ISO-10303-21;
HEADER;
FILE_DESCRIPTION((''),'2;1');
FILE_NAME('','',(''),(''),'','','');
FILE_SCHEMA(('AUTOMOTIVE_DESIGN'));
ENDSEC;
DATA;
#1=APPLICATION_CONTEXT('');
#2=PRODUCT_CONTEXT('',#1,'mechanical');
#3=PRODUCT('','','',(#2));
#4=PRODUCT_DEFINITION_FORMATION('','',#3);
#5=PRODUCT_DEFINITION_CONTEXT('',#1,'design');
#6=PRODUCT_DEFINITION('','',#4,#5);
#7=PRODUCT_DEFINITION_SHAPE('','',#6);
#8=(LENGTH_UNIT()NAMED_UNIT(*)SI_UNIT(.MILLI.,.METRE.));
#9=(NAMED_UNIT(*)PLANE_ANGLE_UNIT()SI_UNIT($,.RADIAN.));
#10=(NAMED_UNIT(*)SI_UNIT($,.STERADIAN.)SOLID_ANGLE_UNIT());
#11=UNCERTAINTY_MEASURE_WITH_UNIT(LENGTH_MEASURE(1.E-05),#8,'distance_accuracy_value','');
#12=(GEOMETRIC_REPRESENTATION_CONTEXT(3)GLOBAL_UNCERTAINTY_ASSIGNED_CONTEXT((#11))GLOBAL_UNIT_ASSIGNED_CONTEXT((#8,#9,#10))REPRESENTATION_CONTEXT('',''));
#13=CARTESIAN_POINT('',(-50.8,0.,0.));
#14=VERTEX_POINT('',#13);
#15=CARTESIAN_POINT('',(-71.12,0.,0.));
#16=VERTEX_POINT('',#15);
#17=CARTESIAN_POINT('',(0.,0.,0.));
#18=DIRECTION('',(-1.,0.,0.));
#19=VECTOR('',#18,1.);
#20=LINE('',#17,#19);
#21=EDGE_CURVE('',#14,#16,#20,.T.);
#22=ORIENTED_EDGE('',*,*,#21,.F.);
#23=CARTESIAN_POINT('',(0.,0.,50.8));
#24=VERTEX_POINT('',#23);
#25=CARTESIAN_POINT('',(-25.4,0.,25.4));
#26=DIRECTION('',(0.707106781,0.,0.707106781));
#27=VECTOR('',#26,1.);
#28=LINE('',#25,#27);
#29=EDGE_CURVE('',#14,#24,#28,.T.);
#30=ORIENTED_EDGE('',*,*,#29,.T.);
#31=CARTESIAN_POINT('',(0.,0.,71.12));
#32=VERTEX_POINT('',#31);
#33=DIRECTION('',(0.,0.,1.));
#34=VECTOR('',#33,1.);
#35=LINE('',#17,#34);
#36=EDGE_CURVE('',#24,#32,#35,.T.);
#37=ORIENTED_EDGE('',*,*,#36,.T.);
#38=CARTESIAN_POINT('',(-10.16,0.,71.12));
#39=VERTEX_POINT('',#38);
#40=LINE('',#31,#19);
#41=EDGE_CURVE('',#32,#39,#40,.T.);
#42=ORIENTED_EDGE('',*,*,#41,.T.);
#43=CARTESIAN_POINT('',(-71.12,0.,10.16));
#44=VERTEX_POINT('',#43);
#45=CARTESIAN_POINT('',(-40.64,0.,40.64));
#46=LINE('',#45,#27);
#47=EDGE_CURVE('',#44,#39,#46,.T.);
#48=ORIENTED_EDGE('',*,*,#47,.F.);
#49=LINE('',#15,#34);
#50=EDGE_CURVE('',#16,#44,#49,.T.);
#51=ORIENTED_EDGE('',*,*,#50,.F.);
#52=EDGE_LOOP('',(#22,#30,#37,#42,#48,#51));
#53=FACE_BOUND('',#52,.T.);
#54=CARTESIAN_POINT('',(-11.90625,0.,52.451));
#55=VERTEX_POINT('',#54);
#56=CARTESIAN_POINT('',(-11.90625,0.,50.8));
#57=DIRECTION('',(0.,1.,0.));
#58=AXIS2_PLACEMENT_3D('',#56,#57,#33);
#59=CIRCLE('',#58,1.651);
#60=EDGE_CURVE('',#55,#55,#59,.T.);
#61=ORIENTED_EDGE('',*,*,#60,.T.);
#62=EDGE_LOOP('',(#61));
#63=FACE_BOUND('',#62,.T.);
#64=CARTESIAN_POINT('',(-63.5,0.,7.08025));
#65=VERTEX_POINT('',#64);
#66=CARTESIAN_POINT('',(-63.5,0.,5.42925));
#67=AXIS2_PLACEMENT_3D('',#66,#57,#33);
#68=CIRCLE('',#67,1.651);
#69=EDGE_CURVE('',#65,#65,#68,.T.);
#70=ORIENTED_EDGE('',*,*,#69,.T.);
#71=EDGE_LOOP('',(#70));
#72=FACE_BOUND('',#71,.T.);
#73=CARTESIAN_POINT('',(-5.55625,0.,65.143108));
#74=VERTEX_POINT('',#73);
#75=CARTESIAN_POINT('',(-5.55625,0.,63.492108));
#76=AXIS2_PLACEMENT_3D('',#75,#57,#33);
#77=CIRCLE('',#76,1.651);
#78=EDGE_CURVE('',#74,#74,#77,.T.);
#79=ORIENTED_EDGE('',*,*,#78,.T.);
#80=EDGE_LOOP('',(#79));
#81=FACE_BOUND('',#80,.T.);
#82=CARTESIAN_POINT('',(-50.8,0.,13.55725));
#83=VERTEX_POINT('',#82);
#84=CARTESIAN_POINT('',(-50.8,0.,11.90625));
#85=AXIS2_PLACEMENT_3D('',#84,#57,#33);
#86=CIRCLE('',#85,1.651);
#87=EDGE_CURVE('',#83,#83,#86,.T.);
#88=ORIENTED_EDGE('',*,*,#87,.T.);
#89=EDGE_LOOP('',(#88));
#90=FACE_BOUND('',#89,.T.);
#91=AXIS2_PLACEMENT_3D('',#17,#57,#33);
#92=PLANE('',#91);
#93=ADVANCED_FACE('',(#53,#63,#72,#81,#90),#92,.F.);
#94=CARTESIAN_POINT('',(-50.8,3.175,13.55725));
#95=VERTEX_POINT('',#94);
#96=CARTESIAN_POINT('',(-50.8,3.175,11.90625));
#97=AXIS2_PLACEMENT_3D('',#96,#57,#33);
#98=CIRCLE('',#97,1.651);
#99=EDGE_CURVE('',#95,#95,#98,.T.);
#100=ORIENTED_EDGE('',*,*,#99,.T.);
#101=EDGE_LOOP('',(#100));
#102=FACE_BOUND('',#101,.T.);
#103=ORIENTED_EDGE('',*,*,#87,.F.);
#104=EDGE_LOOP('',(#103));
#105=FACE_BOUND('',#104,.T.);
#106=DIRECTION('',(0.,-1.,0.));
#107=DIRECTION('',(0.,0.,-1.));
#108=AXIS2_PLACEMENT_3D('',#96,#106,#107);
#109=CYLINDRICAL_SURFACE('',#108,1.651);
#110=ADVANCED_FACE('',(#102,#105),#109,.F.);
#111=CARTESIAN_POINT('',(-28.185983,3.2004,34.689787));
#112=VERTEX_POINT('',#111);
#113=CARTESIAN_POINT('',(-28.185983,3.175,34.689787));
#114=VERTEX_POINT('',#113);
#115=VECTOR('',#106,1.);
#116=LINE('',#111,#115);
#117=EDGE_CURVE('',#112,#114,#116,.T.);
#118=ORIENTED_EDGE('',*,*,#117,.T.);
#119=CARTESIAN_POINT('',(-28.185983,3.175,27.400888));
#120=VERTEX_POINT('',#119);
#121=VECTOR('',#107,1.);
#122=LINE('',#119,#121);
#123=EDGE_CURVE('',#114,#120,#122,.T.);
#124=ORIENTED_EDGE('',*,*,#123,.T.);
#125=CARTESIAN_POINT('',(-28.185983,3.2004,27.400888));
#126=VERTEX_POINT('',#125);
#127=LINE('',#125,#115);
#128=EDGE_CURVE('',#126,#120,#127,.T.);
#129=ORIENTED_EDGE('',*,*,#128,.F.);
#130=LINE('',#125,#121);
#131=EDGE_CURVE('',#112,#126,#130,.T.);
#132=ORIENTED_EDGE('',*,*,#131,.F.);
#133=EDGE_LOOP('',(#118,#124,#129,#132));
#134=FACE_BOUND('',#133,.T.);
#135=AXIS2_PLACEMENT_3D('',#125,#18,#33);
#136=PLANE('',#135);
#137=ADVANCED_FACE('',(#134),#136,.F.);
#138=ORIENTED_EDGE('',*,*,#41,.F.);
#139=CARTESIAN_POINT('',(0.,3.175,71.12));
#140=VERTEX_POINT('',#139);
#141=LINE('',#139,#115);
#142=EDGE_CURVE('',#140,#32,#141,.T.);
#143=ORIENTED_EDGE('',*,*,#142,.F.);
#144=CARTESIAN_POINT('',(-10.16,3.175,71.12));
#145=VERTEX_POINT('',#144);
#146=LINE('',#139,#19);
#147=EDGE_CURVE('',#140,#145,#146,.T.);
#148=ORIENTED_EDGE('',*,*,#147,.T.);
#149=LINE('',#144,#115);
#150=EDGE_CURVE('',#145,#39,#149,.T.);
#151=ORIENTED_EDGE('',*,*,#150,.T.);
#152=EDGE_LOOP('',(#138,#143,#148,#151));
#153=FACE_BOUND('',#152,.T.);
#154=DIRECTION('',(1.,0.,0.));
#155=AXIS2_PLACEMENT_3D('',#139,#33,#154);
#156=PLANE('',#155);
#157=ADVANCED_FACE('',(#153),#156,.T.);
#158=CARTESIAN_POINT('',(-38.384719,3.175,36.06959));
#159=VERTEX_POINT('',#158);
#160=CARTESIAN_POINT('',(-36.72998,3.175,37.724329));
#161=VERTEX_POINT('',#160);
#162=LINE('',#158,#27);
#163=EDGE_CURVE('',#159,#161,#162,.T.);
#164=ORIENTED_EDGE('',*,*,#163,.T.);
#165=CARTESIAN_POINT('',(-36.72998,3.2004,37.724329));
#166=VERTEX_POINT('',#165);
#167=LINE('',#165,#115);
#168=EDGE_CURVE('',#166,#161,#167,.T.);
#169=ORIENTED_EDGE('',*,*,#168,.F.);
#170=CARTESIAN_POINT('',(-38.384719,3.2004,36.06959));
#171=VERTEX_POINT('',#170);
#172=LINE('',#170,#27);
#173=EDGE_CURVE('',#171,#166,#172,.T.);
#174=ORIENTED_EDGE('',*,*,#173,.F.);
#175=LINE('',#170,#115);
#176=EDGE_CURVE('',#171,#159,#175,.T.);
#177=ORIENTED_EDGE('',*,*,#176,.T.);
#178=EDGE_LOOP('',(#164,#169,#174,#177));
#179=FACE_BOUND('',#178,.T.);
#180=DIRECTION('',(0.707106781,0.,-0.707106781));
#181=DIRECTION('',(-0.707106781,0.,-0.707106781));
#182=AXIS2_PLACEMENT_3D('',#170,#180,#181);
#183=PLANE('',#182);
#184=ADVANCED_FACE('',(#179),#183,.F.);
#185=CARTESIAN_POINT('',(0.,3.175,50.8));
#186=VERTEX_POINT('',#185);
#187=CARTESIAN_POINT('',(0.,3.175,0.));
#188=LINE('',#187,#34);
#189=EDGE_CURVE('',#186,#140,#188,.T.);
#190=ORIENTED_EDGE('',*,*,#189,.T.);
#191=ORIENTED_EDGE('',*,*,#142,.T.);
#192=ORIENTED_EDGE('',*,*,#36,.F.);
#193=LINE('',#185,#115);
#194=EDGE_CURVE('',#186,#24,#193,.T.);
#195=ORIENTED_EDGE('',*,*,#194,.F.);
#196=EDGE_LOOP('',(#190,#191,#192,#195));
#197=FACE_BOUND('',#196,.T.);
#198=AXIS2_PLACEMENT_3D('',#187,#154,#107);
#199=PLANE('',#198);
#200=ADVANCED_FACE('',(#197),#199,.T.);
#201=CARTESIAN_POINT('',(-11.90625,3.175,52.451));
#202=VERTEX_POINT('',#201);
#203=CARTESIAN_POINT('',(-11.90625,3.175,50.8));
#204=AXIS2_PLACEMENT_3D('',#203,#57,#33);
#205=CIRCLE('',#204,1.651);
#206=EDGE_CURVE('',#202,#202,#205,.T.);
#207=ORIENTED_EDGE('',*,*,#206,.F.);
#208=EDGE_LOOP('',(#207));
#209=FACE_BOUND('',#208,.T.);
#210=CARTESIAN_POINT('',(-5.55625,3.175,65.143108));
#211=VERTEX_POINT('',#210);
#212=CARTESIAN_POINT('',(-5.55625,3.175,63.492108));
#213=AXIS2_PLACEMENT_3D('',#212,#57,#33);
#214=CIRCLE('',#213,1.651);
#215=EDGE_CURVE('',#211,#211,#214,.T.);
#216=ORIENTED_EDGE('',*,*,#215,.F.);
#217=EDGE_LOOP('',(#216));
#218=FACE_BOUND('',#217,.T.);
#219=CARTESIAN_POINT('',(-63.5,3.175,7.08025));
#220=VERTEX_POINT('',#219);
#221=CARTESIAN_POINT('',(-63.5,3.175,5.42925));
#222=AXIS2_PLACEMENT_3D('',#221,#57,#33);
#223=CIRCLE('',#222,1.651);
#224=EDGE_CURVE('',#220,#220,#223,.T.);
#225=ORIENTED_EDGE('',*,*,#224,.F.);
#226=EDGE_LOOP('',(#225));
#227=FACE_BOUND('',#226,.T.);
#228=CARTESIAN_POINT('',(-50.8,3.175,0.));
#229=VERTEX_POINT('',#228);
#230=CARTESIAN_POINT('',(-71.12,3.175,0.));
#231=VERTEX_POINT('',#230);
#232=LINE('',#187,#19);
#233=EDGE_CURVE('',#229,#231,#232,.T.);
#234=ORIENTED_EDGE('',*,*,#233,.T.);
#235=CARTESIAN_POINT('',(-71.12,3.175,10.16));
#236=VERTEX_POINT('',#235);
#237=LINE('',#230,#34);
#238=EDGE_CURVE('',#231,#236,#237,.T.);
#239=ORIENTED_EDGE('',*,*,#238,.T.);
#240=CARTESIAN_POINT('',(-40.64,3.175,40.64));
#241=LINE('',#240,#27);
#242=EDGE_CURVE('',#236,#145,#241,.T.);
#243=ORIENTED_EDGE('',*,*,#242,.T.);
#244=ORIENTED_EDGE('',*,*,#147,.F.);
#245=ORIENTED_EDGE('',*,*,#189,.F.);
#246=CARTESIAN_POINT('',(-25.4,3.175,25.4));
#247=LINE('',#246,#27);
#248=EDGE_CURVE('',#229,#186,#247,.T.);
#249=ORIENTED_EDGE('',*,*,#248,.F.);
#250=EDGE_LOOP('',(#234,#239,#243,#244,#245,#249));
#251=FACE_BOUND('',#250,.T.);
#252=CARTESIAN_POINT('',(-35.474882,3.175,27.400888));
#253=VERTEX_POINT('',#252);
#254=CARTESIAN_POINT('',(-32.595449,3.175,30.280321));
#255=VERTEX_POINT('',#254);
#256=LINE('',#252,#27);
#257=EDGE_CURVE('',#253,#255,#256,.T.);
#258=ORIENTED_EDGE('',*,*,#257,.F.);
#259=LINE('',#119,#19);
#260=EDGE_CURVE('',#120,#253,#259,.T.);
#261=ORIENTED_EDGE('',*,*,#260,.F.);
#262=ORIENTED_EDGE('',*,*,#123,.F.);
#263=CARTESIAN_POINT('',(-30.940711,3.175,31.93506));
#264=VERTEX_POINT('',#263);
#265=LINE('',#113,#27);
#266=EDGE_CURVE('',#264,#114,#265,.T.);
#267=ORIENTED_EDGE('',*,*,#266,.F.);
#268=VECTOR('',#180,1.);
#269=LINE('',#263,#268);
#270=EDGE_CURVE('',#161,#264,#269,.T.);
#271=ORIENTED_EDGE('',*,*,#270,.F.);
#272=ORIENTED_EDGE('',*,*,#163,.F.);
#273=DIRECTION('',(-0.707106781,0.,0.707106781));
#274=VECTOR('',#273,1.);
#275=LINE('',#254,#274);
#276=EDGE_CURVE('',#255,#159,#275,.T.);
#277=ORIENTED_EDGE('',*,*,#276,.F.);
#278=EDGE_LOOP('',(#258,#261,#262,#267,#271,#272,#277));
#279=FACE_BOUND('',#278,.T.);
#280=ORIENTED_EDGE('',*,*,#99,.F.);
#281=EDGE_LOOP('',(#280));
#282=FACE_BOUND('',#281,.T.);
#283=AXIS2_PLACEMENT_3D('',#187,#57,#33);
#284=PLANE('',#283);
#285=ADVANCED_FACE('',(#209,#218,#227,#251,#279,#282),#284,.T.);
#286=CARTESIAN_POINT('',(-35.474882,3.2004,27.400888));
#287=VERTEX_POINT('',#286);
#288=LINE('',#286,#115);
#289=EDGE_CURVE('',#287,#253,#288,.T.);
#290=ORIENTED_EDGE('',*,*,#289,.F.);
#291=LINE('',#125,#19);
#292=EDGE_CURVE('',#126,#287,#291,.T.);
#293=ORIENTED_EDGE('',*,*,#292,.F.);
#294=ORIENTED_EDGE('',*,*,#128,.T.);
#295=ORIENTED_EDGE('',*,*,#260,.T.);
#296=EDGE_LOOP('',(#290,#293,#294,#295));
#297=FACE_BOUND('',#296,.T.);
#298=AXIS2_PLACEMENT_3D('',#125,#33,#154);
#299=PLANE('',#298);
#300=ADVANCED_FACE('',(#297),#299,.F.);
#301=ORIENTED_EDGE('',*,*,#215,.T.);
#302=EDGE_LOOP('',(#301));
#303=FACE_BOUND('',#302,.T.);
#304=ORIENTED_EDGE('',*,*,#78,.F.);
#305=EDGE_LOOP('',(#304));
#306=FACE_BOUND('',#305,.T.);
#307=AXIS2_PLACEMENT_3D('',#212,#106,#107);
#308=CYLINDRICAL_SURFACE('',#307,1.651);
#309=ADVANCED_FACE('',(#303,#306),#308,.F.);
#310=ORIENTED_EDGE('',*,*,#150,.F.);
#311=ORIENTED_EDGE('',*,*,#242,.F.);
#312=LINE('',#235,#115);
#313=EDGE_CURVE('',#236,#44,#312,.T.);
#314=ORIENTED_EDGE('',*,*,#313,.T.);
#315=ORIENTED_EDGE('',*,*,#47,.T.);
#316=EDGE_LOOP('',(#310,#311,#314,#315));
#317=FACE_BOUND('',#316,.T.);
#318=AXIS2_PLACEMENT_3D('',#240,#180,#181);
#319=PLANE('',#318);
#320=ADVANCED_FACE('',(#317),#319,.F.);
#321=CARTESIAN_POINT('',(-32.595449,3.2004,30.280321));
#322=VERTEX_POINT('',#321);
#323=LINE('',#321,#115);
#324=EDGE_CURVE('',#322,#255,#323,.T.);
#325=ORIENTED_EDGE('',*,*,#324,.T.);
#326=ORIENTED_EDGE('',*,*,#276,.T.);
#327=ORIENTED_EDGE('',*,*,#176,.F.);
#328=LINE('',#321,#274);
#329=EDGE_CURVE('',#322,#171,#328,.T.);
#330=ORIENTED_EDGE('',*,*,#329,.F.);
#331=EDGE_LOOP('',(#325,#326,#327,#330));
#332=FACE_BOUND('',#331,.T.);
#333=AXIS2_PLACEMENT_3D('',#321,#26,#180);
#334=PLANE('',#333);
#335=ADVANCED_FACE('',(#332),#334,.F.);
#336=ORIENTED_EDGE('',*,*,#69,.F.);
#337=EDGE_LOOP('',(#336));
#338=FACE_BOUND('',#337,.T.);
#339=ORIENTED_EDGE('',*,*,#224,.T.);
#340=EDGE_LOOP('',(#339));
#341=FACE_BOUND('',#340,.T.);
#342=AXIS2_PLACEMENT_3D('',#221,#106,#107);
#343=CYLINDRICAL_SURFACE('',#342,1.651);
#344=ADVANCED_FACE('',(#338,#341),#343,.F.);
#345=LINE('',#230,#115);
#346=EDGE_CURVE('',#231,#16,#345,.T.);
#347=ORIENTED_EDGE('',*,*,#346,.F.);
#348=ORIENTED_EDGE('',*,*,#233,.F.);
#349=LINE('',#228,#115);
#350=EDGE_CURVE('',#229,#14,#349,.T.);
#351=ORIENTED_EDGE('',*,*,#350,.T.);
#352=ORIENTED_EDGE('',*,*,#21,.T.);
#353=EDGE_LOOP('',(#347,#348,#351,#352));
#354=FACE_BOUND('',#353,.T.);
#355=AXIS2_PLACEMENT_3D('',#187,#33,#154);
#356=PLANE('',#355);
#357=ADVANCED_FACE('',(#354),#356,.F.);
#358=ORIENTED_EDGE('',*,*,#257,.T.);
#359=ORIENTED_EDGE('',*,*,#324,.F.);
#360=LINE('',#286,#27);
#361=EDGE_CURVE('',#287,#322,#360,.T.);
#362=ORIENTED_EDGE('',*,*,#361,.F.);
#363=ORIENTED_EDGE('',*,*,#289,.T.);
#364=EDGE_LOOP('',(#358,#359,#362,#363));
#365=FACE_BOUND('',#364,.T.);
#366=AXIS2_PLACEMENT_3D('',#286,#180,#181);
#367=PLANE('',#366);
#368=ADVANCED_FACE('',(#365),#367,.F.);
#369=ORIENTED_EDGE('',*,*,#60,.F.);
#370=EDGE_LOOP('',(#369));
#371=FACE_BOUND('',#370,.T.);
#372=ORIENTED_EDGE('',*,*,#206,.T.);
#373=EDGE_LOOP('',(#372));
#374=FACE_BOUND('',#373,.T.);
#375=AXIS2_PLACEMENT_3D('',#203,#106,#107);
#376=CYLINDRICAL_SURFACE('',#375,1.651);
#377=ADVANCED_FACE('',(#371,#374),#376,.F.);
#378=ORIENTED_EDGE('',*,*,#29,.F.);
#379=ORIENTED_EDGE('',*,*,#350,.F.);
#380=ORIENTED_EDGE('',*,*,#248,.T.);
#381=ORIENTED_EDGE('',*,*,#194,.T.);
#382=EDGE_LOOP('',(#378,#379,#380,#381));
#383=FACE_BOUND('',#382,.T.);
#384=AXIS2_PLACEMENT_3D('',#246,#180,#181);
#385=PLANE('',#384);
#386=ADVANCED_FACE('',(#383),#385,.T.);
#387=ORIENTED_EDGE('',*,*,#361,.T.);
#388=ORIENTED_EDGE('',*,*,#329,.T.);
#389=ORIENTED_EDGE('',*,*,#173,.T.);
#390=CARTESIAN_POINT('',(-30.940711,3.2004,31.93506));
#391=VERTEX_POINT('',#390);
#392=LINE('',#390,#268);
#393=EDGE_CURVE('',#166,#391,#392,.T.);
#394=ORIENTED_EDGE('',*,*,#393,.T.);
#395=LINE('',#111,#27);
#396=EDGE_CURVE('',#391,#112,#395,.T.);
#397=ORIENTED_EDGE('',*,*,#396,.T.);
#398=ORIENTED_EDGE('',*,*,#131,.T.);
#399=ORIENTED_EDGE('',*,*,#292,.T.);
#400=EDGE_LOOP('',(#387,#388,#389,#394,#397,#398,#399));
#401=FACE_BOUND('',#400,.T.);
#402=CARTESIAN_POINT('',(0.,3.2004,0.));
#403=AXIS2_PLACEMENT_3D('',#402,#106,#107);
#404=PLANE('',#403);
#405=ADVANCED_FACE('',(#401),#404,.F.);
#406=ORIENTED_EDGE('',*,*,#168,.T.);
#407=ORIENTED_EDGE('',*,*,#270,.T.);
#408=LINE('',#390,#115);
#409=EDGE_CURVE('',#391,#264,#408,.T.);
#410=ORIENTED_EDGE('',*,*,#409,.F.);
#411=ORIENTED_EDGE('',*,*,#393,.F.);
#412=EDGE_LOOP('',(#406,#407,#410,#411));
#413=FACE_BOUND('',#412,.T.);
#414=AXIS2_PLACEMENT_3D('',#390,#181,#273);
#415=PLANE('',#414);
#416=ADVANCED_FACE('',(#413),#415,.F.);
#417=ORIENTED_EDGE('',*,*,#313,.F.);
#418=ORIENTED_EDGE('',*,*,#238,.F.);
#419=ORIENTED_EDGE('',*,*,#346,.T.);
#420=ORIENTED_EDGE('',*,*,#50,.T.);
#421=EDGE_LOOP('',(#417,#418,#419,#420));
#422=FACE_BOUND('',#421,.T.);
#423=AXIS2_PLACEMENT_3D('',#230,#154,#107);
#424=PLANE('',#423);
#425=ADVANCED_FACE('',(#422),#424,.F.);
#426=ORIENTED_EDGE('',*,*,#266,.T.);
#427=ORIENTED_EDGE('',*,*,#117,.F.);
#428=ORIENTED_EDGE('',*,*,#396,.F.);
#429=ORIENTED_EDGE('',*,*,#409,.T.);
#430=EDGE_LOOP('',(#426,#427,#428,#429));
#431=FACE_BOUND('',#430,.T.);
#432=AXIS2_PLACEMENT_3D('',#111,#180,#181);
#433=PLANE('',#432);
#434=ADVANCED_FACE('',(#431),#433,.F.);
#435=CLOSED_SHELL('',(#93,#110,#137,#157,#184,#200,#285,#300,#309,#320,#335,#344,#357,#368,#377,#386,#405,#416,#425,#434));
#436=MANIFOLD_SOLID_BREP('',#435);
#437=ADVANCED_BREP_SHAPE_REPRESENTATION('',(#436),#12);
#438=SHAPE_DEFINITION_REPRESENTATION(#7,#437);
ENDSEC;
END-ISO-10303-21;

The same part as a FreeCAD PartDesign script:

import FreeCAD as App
import Part
import Sketcher
Q = App.Units.Quantity

doc = App.newDocument("Part")
body = doc.addObject("PartDesign::Body", "Body")

sketch1 = doc.addObject("Sketcher::SketchObject", "Sketch")
body.addObject(sketch1)
sketch1.AttachmentSupport = (doc.XZ_Plane, [""])
sketch1.MapMode = "FlatFace"
sketch1.addGeometry([
    Part.LineSegment(App.Vector(0, 50.8, 0), App.Vector(-50.8, 0, 0)),
    Part.LineSegment(App.Vector(-50.8, 0, 0), App.Vector(-71.1, 0, 0)),
    Part.LineSegment(App.Vector(-71.1, 0, 0), App.Vector(-71.1, 10.2, 0)),
    Part.LineSegment(App.Vector(-71.1, 10.2, 0), App.Vector(-10.2, 71.1, 0)),
    Part.LineSegment(App.Vector(-10.2, 71.1, 0), App.Vector(0, 71.1, 0)),
    Part.LineSegment(App.Vector(0, 71.1, 0), App.Vector(0, 50.8, 0)),
    Part.Circle(App.Vector(-5.6, 63.5, 0), App.Vector(0, 0, 1), 1.7),
    Part.Circle(App.Vector(-11.9, 50.8, 0), App.Vector(0, 0, 1), 1.7),
    Part.Circle(App.Vector(-50.8, 11.9, 0), App.Vector(0, 0, 1), 1.7),
    Part.Circle(App.Vector(-63.5, 5.4, 0), App.Vector(0, 0, 1), 1.7),
], False)
sketch1.addConstraint([
    Sketcher.Constraint("Coincident", 0, 2, 1, 1),
    Sketcher.Constraint("Coincident", 1, 2, 2, 1),
    Sketcher.Constraint("Coincident", 2, 2, 3, 1),
    Sketcher.Constraint("Coincident", 3, 2, 4, 1),
    Sketcher.Constraint("Coincident", 4, 2, 5, 1),
    Sketcher.Constraint("Coincident", 5, 2, 0, 1),
    Sketcher.Constraint("Horizontal", 1),
    Sketcher.Constraint("Vertical", 2),
    Sketcher.Constraint("Horizontal", 4),
    Sketcher.Constraint("Vertical", 5),
    Sketcher.Constraint("Equal", 6, 7),
    Sketcher.Constraint("Equal", 7, 8),
    Sketcher.Constraint("Equal", 8, 9),
    Sketcher.Constraint("PointOnObject", 0, 2, -1),
    Sketcher.Constraint("PointOnObject", 4, 2, -2),
    Sketcher.Constraint("Parallel", 0, 3),
    Sketcher.Constraint("Horizontal", 7, 3, 5, 2),
    Sketcher.Constraint("Vertical", 8, 3, 0, 2),
    Sketcher.Constraint("Equal", 4, 2),
    Sketcher.Constraint("Equal", 1, 5),
    Sketcher.Constraint("Diameter", 6, Q("0.13 in")),
    Sketcher.Constraint("DistanceX", 1, 2, 1, 1, Q("0.8 in")),
    Sketcher.Constraint("DistanceX", 4, 1, 4, 2, Q("0.4 in")),
    Sketcher.Constraint("DistanceY", -1, 1, 7, 3, Q("2 in")),
    Sketcher.Constraint("DistanceX", 9, 3, -1, 1, Q("2.5 in")),
    Sketcher.Constraint("DistanceX", 7, 3, 6, 3, Q("0.25 in")),
    Sketcher.Constraint("DistanceX", 6, 3, -1, 1, Q("0.21875 in")),
    Sketcher.Constraint("DistanceY", -1, 1, 8, 3, Q("0.46875 in")),
    Sketcher.Constraint("DistanceY", 9, 3, 8, 3, Q("0.255 in")),
    Sketcher.Constraint("DistanceY", -1, 1, 6, 3, 63.492108),
])
pad1 = doc.addObject("PartDesign::Pad", "Pad")
body.addObject(pad1)
pad1.Profile = sketch1
pad1.Length = Q("0.125 in")
pad1.Reversed = True

sketch2 = doc.addObject("Sketcher::SketchObject", "Sketch001")
body.addObject(sketch2)
sketch2.AttachmentSupport = (doc.XZ_Plane, [""])
sketch2.MapMode = "FlatFace"
sketch2.AttachmentOffset = App.Placement(App.Vector(0, 0, -0.125 * 25.4), App.Rotation())
sketch2.addGeometry([
    Part.LineSegment(App.Vector(-28.2, 27.4, 0), App.Vector(-35.5, 27.4, 0)),
    Part.LineSegment(App.Vector(-35.5, 27.4, 0), App.Vector(-32.6, 30.3, 0)),
    Part.LineSegment(App.Vector(-32.6, 30.3, 0), App.Vector(-38.4, 36.1, 0)),
    Part.LineSegment(App.Vector(-38.4, 36.1, 0), App.Vector(-36.7, 37.7, 0)),
    Part.LineSegment(App.Vector(-36.7, 37.7, 0), App.Vector(-30.9, 31.9, 0)),
    Part.LineSegment(App.Vector(-30.9, 31.9, 0), App.Vector(-28.2, 34.7, 0)),
    Part.LineSegment(App.Vector(-28.2, 34.7, 0), App.Vector(-28.2, 27.4, 0)),
], False)
sketch2.addConstraint([
    Sketcher.Constraint("Coincident", 0, 2, 1, 1),
    Sketcher.Constraint("Coincident", 1, 2, 2, 1),
    Sketcher.Constraint("Coincident", 2, 2, 3, 1),
    Sketcher.Constraint("Coincident", 3, 2, 4, 1),
    Sketcher.Constraint("Coincident", 4, 2, 5, 1),
    Sketcher.Constraint("Coincident", 5, 2, 6, 1),
    Sketcher.Constraint("Coincident", 6, 2, 0, 1),
    Sketcher.Constraint("Horizontal", 0),
    Sketcher.Constraint("Vertical", 6),
    Sketcher.Constraint("Perpendicular", 1, 2),
    Sketcher.Constraint("Perpendicular", 2, 3),
    Sketcher.Constraint("Perpendicular", 3, 4),
    Sketcher.Constraint("Perpendicular", 4, 5),
    Sketcher.Constraint("Equal", 0, 6),
    Sketcher.Constraint("Equal", 2, 4),
    Sketcher.Constraint("DistanceX", 0, 2, 0, 1, 7.288899),
    Sketcher.Constraint("DistanceY", -1, 1, 0, 2, 27.400888),
    Sketcher.Constraint("DistanceX", 1, 2, -1, 1, 32.595449),
    Sketcher.Constraint("DistanceY", -1, 1, 1, 2, 30.280321),
    Sketcher.Constraint("DistanceX", 2, 2, -1, 1, 38.384719),
    Sketcher.Constraint("DistanceX", 3, 2, -1, 1, 36.72998),
])
pad2 = doc.addObject("PartDesign::Pad", "Pad001")
body.addObject(pad2)
pad2.Profile = sketch2
pad2.Length = Q("0.001 in")
pad2.Reversed = True

doc.recompute()
